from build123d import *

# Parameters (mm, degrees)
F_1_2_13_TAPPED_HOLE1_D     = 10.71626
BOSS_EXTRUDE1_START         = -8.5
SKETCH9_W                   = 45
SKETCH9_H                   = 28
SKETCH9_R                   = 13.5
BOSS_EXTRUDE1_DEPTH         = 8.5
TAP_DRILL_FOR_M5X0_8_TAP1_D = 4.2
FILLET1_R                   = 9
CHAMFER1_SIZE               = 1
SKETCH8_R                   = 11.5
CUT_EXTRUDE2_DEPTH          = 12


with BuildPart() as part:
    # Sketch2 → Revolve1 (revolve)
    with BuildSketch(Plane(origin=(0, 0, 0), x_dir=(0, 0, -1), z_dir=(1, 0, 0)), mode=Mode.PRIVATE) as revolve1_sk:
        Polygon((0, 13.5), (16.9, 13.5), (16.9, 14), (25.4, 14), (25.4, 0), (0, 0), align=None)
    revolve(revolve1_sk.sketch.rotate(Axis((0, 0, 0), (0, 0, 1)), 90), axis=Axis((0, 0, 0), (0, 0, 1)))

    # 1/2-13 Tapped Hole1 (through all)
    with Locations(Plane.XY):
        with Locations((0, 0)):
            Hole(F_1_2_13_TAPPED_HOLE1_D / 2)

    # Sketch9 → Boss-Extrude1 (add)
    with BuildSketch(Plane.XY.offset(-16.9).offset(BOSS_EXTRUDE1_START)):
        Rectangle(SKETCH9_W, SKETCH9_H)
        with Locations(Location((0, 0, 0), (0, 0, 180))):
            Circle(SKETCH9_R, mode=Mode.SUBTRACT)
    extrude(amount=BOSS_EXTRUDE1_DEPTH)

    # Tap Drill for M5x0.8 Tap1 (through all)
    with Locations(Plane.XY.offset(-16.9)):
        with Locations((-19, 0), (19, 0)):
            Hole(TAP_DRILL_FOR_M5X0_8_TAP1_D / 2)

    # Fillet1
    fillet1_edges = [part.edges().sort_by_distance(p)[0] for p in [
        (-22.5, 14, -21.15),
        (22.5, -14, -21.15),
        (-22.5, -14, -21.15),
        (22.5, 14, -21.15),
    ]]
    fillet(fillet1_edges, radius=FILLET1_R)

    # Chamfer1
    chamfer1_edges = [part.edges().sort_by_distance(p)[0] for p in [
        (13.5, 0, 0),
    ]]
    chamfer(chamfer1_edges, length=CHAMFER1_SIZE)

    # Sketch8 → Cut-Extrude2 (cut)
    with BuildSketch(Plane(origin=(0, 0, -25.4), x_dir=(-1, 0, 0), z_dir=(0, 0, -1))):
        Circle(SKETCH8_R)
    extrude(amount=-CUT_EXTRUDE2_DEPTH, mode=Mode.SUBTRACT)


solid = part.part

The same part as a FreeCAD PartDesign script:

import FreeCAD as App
import Part
import Sketcher
Q = App.Units.Quantity


def edges_at(feature, points):
    """Names of the edges that pass closest to the given points."""
    edges = feature.Shape.Edges
    near = lambda p: min(range(len(edges)), key=lambda i: edges[i].distToShape(Part.Vertex(*p))[0])
    return sorted({f"Edge{near(p) + 1}" for p in points})

doc = App.newDocument("Part")
params = doc.addObject("Spreadsheet::Sheet", "Params")
for row, (alias, value) in enumerate([
    ("sketch1_width", "14 mm"),
    ("sketch1_width2", "13.5 mm"),
    ("sketch1_height", "16.9 mm"),
    ("sketch1_height2", "25.4 mm"),
    ("revolution_angle", "360 deg"),
    ("hole_diameter", "10.71626 mm"),
    ("sketch3_diameter", "27 mm"),
    ("sketch3_width", "45 mm"),
    ("sketch3_height", "28 mm"),
    ("pad1_length", "8.5 mm"),
    ("sketch4_diameter", "4.2 mm"),
    ("hole2_diameter", "4.2 mm"),
    ("fillet_radius", "9 mm"),
    ("chamfer_size", "1 mm"),
    ("sketch5_diameter", "23 mm"),
    ("pocket1_length", "12 mm"),
], start=1):
    params.set(f"A{row}", alias)
    params.set(f"B{row}", "=" + value)
    params.setAlias(f"B{row}", alias)

body = doc.addObject("PartDesign::Body", "Body")

# Sketch on YZ plane
sketch1 = body.newObject("Sketcher::SketchObject", "Sketch")
sketch1.AttachmentSupport = (doc.getObject("YZ_Plane"), [""])
sketch1.MapMode = "FlatFace"
sketch1.addGeometry([
    Part.LineSegment(App.Vector(13.5, -16.9, 0), App.Vector(13.5, 0, 0)),  # 0
    Part.LineSegment(App.Vector(13.5, 0, 0), App.Vector(0, 0, 0)),  # 1
    Part.LineSegment(App.Vector(0, 0, 0), App.Vector(0, -25.4, 0)),  # 2
    Part.LineSegment(App.Vector(0, -25.4, 0), App.Vector(14, -25.4, 0)),  # 3
    Part.LineSegment(App.Vector(14, -25.4, 0), App.Vector(14, -16.9, 0)),  # 4
    Part.LineSegment(App.Vector(14, -16.9, 0), App.Vector(13.5, -16.9, 0)),  # 5
], False)
sketch1.addConstraint([
    Sketcher.Constraint("Coincident", 0, 2, 1, 1),
    Sketcher.Constraint("Coincident", 1, 2, 2, 1),
    Sketcher.Constraint("Coincident", 2, 2, 3, 1),
    Sketcher.Constraint("Coincident", 3, 2, 4, 1),
    Sketcher.Constraint("Coincident", 4, 2, 5, 1),
    Sketcher.Constraint("Coincident", 5, 2, 0, 1),
    Sketcher.Constraint("Vertical", 0),
    Sketcher.Constraint("Horizontal", 1),
    Sketcher.Constraint("Vertical", 2),
    Sketcher.Constraint("Horizontal", 3),
    Sketcher.Constraint("Vertical", 4),
    Sketcher.Constraint("Horizontal", 5),
    Sketcher.Constraint("Coincident", 1, 2, -1, 1),
    Sketcher.Constraint("DistanceX", 3, 1, 3, 2, Q("14 mm")),
    Sketcher.Constraint("DistanceX", 1, 2, 1, 1, Q("13.5 mm")),
    Sketcher.Constraint("DistanceY", 0, 1, 0, 2, Q("16.9 mm")),
    Sketcher.Constraint("DistanceY", 2, 2, 2, 1, Q("25.4 mm")),
])
sketch1.setExpression("Constraints[13]", "Params.sketch1_width")
sketch1.setExpression("Constraints[14]", "Params.sketch1_width2")
sketch1.setExpression("Constraints[15]", "Params.sketch1_height")
sketch1.setExpression("Constraints[16]", "Params.sketch1_height2")
revolution = body.newObject("PartDesign::Revolution", "Revolution")
revolution.Profile = sketch1
revolution.ReferenceAxis = (sketch1, ["V_Axis"])
revolution.setExpression("Angle", "Params.revolution_angle")

# Sketch on XY plane
sketch2 = body.newObject("Sketcher::SketchObject", "Sketch001")
sketch2.AttachmentSupport = (doc.getObject("XY_Plane"), [""])
sketch2.MapMode = "FlatFace"
sketch2.addGeometry(Part.Circle(App.Vector(0, 0, 0), App.Vector(0, 0, 1), 5.35813), False)
sketch2.addConstraint([
    Sketcher.Constraint("Coincident", 0, 3, -1, 1),
    Sketcher.Constraint("Diameter", 0, Q("10.71626 mm")),
])
doc.recompute()
hole = body.newObject("PartDesign::Hole", "Hole")
hole.Profile = sketch2
hole.ThreadType = "None"
hole.setExpression("Diameter", "Params.hole_diameter")
hole.DepthType = "ThroughAll"

# Sketch on XY plane
sketch3 = body.newObject("Sketcher::SketchObject", "Sketch002")
sketch3.AttachmentSupport = (doc.getObject("XY_Plane"), [""])
sketch3.MapMode = "FlatFace"
sketch3.AttachmentOffset = App.Placement(App.Vector(0, 0, -25.4), App.Rotation())
sketch3.addGeometry([
    Part.LineSegment(App.Vector(-22.5, 14, 0), App.Vector(-22.5, -14, 0)),  # 0
    Part.LineSegment(App.Vector(-22.5, -14, 0), App.Vector(22.5, -14, 0)),  # 1
    Part.LineSegment(App.Vector(22.5, -14, 0), App.Vector(22.5, 14, 0)),  # 2
    Part.LineSegment(App.Vector(22.5, 14, 0), App.Vector(-22.5, 14, 0)),  # 3
    Part.Circle(App.Vector(0, 0, 0), App.Vector(0, 0, 1), 13.5),  # 4
], False)
sketch3.addConstraint([
    Sketcher.Constraint("Coincident", 0, 2, 1, 1),
    Sketcher.Constraint("Coincident", 1, 2, 2, 1),
    Sketcher.Constraint("Coincident", 2, 2, 3, 1),
    Sketcher.Constraint("Coincident", 3, 2, 0, 1),
    Sketcher.Constraint("Vertical", 0),
    Sketcher.Constraint("Horizontal", 1),
    Sketcher.Constraint("Vertical", 2),
    Sketcher.Constraint("Horizontal", 3),
    Sketcher.Constraint("Coincident", 4, 3, -1, 1),
    Sketcher.Constraint("Symmetric", 0, 2, 2, 2, -1, 1),
    Sketcher.Constraint("Diameter", 4, Q("27 mm")),
    Sketcher.Constraint("DistanceX", 1, 1, 1, 2, Q("45 mm")),
    Sketcher.Constraint("DistanceY", 0, 2, 0, 1, Q("28 mm")),
])
sketch3.setExpression("Constraints[10]", "Params.sketch3_diameter")
sketch3.setExpression("Constraints[11]", "Params.sketch3_width")
sketch3.setExpression("Constraints[12]", "Params.sketch3_height")
pad1 = body.newObject("PartDesign::Pad", "Pad")
pad1.Profile = sketch3
pad1.setExpression("Length", "Params.pad1_length")

# Sketch on XY plane
sketch4 = body.newObject("Sketcher::SketchObject", "Sketch003")
sketch4.AttachmentSupport = (doc.getObject("XY_Plane"), [""])
sketch4.MapMode = "FlatFace"
sketch4.AttachmentOffset = App.Placement(App.Vector(0, 0, -16.9), App.Rotation())
sketch4.addGeometry([
    Part.Circle(App.Vector(-19, 0, 0), App.Vector(0, 0, 1), 2.1),
    Part.Circle(App.Vector(19, 0, 0), App.Vector(0, 0, 1), 2.1),
], False)
sketch4.addConstraint([
    Sketcher.Constraint("Equal", 0, 1),
    Sketcher.Constraint("Symmetric", 0, 3, 1, 3, -1, 1),
    Sketcher.Constraint("PointOnObject", 0, 3, -1),
    Sketcher.Constraint("Diameter", 0, Q("4.2 mm")),
    Sketcher.Constraint("DistanceX", 0, 3, -1, 1, Q("19 mm")),
])
sketch4.setExpression("Constraints[3]", "Params.sketch4_diameter")
doc.recompute()
hole2 = body.newObject("PartDesign::Hole", "Hole001")
hole2.Profile = sketch4
hole2.ThreadType = "None"
hole2.setExpression("Diameter", "Params.hole2_diameter")
hole2.DepthType = "ThroughAll"
doc.recompute()

fillet = body.newObject("PartDesign::Fillet", "Fillet")
fillet.Base = (hole2, edges_at(hole2, [
    (-22.5, 14, -21.15),
    (22.5, -14, -21.15),
    (-22.5, -14, -21.15),
    (22.5, 14, -21.15),
]))
fillet.setExpression("Radius", "Params.fillet_radius")
doc.recompute()

chamfer = body.newObject("PartDesign::Chamfer", "Chamfer")
chamfer.Base = (fillet, edges_at(fillet, [(13.5, 0, 0)]))
chamfer.setExpression("Size", "Params.chamfer_size")

# Sketch on XY plane
sketch5 = body.newObject("Sketcher::SketchObject", "Sketch004")
sketch5.AttachmentSupport = (doc.getObject("XY_Plane"), [""])
sketch5.MapMode = "FlatFace"
sketch5.AttachmentOffset = App.Placement(App.Vector(0, 0, -25.4), App.Rotation())
sketch5.addGeometry(Part.Circle(App.Vector(0, 0, 0), App.Vector(0, 0, 1), 11.5), False)
sketch5.addConstraint([
    Sketcher.Constraint("Coincident", 0, 3, -1, 1),
    Sketcher.Constraint("Diameter", 0, Q("23 mm")),
])
sketch5.setExpression("Constraints[1]", "Params.sketch5_diameter")
pocket1 = body.newObject("PartDesign::Pocket", "Pocket")
pocket1.Profile = sketch5
pocket1.setExpression("Length", "Params.pocket1_length")
pocket1.Reversed = True

doc.recompute()
